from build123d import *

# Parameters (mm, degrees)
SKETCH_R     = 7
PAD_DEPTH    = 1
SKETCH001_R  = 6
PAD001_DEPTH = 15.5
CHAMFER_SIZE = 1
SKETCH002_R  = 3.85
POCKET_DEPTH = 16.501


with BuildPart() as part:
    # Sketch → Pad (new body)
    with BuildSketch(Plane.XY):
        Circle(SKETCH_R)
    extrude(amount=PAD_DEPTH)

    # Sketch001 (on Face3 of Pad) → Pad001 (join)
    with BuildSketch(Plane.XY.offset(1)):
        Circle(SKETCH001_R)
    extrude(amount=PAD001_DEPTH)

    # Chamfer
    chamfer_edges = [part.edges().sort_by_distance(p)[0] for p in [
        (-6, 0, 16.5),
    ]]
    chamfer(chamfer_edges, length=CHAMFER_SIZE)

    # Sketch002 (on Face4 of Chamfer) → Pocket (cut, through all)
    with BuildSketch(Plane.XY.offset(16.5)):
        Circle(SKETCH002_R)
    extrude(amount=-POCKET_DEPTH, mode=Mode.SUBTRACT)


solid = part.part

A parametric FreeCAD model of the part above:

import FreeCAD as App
import Part
import Sketcher
Q = App.Units.Quantity


def edges_at(feature, points):
    """Names of the edges that pass closest to the given points."""
    edges = feature.Shape.Edges
    near = lambda p: min(range(len(edges)), key=lambda i: edges[i].distToShape(Part.Vertex(*p))[0])
    return sorted({f"Edge{near(p) + 1}" for p in points})

doc = App.newDocument("Part")
body = doc.addObject("PartDesign::Body", "Body")

# Sketch on XY plane
sketch1 = body.newObject("Sketcher::SketchObject", "Sketch")
sketch1.AttachmentSupport = (doc.getObject("XY_Plane"), [""])
sketch1.MapMode = "FlatFace"
sketch1.addGeometry(Part.Circle(App.Vector(0, 0, 0), App.Vector(0, 0, 1), 7), False)
sketch1.addConstraint(Sketcher.Constraint("Coincident", 0, 3, -1, 1))
sketch1.addConstraint(Sketcher.Constraint("Diameter", 0, Q("14 mm")))
pad1 = body.newObject("PartDesign::Pad", "Pad")
pad1.Profile = sketch1
pad1.Length = 1

# Sketch on XY plane
sketch2 = body.newObject("Sketcher::SketchObject", "Sketch001")
sketch2.AttachmentSupport = (doc.getObject("XY_Plane"), [""])
sketch2.MapMode = "FlatFace"
sketch2.AttachmentOffset = App.Placement(App.Vector(0, 0, 1), App.Rotation())
sketch2.addGeometry(Part.Circle(App.Vector(0, 0, 0), App.Vector(0, 0, 1), 6), False)
sketch2.addConstraint(Sketcher.Constraint("Coincident", 0, 3, -1, 1))
sketch2.addConstraint(Sketcher.Constraint("Diameter", 0, Q("12 mm")))
pad2 = body.newObject("PartDesign::Pad", "Pad001")
pad2.Profile = sketch2
pad2.Length = 15.5
doc.recompute()

chamfer = body.newObject("PartDesign::Chamfer", "Chamfer")
chamfer.Base = (pad2, edges_at(pad2, [(-6, 0, 16.5)]))
chamfer.Size = 1

# Sketch on XY plane
sketch3 = body.newObject("Sketcher::SketchObject", "Sketch002")
sketch3.AttachmentSupport = (doc.getObject("XY_Plane"), [""])
sketch3.MapMode = "FlatFace"
sketch3.AttachmentOffset = App.Placement(App.Vector(0, 0, 16.5), App.Rotation())
sketch3.addGeometry(Part.Circle(App.Vector(0, 0, 0), App.Vector(0, 0, 1), 3.9), False)
sketch3.addConstraint(Sketcher.Constraint("Coincident", 0, 3, -1, 1))
sketch3.addConstraint(Sketcher.Constraint("Diameter", 0, Q("7.7 mm")))
pocket1 = body.newObject("PartDesign::Pocket", "Pocket")
pocket1.Profile = sketch3
pocket1.Type = "ThroughAll"

doc.recompute()
